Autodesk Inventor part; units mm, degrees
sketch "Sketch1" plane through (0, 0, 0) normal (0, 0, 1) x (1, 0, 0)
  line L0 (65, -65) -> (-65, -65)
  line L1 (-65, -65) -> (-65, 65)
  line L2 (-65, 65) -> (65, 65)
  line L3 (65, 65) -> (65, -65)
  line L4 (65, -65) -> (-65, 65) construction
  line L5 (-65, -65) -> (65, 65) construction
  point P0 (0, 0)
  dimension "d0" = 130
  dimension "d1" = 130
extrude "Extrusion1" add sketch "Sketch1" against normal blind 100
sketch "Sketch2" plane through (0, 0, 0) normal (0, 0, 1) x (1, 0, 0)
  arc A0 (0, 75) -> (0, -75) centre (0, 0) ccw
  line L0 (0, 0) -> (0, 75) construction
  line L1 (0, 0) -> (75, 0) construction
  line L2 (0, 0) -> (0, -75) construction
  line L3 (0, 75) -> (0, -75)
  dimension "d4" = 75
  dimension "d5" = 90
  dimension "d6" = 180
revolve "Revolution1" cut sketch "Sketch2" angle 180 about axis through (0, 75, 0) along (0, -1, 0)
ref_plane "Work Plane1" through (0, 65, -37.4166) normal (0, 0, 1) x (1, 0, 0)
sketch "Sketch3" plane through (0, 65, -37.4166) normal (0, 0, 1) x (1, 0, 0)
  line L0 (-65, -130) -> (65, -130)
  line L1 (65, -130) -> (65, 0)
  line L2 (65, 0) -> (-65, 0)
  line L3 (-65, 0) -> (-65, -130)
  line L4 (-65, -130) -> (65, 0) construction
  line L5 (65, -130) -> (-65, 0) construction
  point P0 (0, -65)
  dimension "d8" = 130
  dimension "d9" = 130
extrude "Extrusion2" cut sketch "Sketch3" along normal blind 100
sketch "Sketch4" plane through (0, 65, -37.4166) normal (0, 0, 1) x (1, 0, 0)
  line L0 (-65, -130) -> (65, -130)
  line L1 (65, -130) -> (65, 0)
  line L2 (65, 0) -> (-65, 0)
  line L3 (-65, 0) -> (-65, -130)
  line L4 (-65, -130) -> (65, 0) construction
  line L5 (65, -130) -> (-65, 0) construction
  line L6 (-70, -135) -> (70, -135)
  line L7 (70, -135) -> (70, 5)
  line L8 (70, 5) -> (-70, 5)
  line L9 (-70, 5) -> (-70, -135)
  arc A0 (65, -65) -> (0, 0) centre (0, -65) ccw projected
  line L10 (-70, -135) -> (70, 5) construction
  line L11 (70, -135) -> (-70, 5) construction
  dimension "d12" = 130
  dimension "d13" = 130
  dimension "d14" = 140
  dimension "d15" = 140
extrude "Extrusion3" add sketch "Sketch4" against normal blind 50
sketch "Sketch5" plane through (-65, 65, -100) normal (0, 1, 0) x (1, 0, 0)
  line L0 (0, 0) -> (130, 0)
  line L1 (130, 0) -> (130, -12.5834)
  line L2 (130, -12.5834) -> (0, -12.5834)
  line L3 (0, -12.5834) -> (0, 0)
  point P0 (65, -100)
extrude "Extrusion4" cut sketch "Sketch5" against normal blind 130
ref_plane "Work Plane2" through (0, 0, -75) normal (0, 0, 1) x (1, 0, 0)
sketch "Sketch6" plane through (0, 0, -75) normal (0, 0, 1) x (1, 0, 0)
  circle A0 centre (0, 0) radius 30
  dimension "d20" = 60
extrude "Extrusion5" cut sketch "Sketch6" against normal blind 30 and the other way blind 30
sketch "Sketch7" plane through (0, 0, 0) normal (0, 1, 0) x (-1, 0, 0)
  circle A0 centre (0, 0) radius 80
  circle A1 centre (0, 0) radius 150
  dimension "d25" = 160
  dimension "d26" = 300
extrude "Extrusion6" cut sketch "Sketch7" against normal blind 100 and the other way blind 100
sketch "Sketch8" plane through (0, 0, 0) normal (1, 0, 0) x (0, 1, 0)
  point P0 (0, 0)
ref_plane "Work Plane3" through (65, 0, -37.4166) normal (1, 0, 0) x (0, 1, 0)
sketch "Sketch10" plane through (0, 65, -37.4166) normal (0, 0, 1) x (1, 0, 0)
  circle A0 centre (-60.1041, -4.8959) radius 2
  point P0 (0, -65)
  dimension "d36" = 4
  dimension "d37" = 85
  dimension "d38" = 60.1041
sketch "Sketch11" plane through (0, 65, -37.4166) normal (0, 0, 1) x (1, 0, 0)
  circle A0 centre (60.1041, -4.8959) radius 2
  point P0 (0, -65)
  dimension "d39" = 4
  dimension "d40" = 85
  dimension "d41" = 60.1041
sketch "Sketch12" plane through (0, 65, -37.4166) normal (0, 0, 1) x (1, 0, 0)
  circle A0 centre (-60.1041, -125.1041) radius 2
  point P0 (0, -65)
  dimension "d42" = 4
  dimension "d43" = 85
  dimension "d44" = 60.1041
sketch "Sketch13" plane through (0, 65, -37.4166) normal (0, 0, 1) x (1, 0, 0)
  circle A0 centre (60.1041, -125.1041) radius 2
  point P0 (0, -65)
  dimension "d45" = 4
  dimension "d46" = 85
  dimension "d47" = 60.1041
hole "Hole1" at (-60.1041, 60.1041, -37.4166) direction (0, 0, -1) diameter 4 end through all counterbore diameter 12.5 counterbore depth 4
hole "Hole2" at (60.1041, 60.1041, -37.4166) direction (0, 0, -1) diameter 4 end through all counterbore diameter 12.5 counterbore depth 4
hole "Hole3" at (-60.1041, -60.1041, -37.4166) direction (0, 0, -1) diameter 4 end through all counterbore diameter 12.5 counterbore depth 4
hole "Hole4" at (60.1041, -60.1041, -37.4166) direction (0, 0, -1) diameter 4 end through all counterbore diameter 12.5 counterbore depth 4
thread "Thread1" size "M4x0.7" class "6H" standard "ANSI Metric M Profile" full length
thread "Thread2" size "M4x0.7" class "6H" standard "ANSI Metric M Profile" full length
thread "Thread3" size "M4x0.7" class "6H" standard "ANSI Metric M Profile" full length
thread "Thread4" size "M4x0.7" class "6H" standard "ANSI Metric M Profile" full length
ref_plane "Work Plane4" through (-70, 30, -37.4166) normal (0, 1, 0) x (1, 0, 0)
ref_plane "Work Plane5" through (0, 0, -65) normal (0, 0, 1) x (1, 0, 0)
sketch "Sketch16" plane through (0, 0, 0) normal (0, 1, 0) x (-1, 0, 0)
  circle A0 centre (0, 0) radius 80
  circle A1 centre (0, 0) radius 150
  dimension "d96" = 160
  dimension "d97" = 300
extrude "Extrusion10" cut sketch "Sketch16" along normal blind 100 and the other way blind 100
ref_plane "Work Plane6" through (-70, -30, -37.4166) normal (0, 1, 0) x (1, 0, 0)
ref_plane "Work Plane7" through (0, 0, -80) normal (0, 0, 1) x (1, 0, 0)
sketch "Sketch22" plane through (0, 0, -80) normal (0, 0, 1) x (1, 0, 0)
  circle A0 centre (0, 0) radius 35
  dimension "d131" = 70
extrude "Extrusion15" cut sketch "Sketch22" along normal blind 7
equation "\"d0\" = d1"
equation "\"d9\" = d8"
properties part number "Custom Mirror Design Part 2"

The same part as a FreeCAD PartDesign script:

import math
import FreeCAD as App
import Part
import Sketcher
from FreeCAD import Vector

doc = App.newDocument("Part")
body = doc.addObject("PartDesign::Body", "Body")

# Sketch on XY plane
sketch1 = doc.addObject("Sketcher::SketchObject", "Sketch")
body.addObject(sketch1)
sketch1.AttachmentSupport = (doc.XY_Plane, [""])
sketch1.MapMode = "FlatFace"
sketch1.addGeometry([
    Part.LineSegment(Vector(-65, -65, 0), Vector(65, -65, 0)),
    Part.LineSegment(Vector(65, -65, 0), Vector(65, 65, 0)),
    Part.LineSegment(Vector(65, 65, 0), Vector(-65, 65, 0)),
    Part.LineSegment(Vector(-65, 65, 0), Vector(-65, -65, 0)),
], False)
sketch1.addConstraint([
    Sketcher.Constraint("Coincident", 0, 2, 1, 1),
    Sketcher.Constraint("Coincident", 1, 2, 2, 1),
    Sketcher.Constraint("Coincident", 2, 2, 3, 1),
    Sketcher.Constraint("Coincident", 3, 2, 0, 1),
    Sketcher.Constraint("Horizontal", 0),
    Sketcher.Constraint("Vertical", 1),
    Sketcher.Constraint("Horizontal", 2),
    Sketcher.Constraint("Vertical", 3),
    Sketcher.Constraint("Symmetric", 0, 2, 2, 2, -1, 1),
    Sketcher.Constraint("Equal", 2, 1),
    Sketcher.Constraint("DistanceX", 0, 1, 0, 2, 130.0),
])
pad1 = doc.addObject("PartDesign::Pad", "Pad")
body.addObject(pad1)
pad1.Profile = sketch1
pad1.Length = 100
pad1.Reversed = True

# Sketch on XY plane
sketch2 = doc.addObject("Sketcher::SketchObject", "Sketch001")
body.addObject(sketch2)
sketch2.AttachmentSupport = (doc.XY_Plane, [""])
sketch2.MapMode = "FlatFace"
sketch2.addGeometry([
    Part.LineSegment(Vector(0, -75, 0), Vector(0, 75, 0)),
    Part.ArcOfCircle(Part.Circle(Vector(0, 0, 0), Vector(0, 0, 1), 75), math.radians(90), math.radians(270)),
], False)
sketch2.addConstraint([
    Sketcher.Constraint("Coincident", 0, 1, 1, 2),
    Sketcher.Constraint("Coincident", 1, 1, 0, 2),
    Sketcher.Constraint("Vertical", 0),
    Sketcher.Constraint("Coincident", 1, 3, -1, 1),
    Sketcher.Constraint("PointOnObject", 0, 1, -2),
    Sketcher.Constraint("Radius", 1, 75.0),
])
groove = doc.addObject("PartDesign::Groove", "Groove")
body.addObject(groove)
groove.Profile = sketch2
groove.ReferenceAxis = (sketch2, ["V_Axis"])
groove.Angle = 180
groove.Reversed = True

# Sketch on XY plane
sketch3 = doc.addObject("Sketcher::SketchObject", "Sketch002")
body.addObject(sketch3)
sketch3.AttachmentSupport = (doc.XY_Plane, [""])
sketch3.MapMode = "FlatFace"
sketch3.AttachmentOffset = App.Placement(Vector(0, 0, -37.4166), App.Rotation())
sketch3.addGeometry([
    Part.LineSegment(Vector(-65, 65, 0), Vector(-65, -65, 0)),
    Part.LineSegment(Vector(-65, -65, 0), Vector(65, -65, 0)),
    Part.LineSegment(Vector(65, -65, 0), Vector(65, 65, 0)),
    Part.LineSegment(Vector(65, 65, 0), Vector(-65, 65, 0)),
], False)
sketch3.addConstraint([
    Sketcher.Constraint("Coincident", 0, 2, 1, 1),
    Sketcher.Constraint("Coincident", 1, 2, 2, 1),
    Sketcher.Constraint("Coincident", 2, 2, 3, 1),
    Sketcher.Constraint("Coincident", 3, 2, 0, 1),
    Sketcher.Constraint("Vertical", 0),
    Sketcher.Constraint("Horizontal", 1),
    Sketcher.Constraint("Vertical", 2),
    Sketcher.Constraint("Horizontal", 3),
    Sketcher.Constraint("Symmetric", 0, 2, 2, 2, -1, 1),
    Sketcher.Constraint("Equal", 3, 0),
    Sketcher.Constraint("DistanceX", 1, 1, 1, 2, 130.0),
])
pocket1 = doc.addObject("PartDesign::Pocket", "Pocket")
body.addObject(pocket1)
pocket1.Profile = sketch3
pocket1.Length = 100
pocket1.Reversed = True

# Sketch on XY plane
sketch4 = doc.addObject("Sketcher::SketchObject", "Sketch003")
body.addObject(sketch4)
sketch4.AttachmentSupport = (doc.XY_Plane, [""])
sketch4.MapMode = "FlatFace"
sketch4.AttachmentOffset = App.Placement(Vector(0, 0, -37.4166), App.Rotation())
sketch4.addGeometry([
    Part.LineSegment(Vector(-70, 70, 0), Vector(-70, -70, 0)),  # 0
    Part.LineSegment(Vector(-70, -70, 0), Vector(70, -70, 0)),  # 1
    Part.LineSegment(Vector(70, -70, 0), Vector(70, 70, 0)),  # 2
    Part.LineSegment(Vector(70, 70, 0), Vector(-70, 70, 0)),  # 3
    Part.LineSegment(Vector(65, -65, 0), Vector(-65, -65, 0)),  # 4
    Part.LineSegment(Vector(-65, -65, 0), Vector(-65, 65, 0)),  # 5
    Part.LineSegment(Vector(-65, 65, 0), Vector(65, 65, 0)),  # 6
    Part.LineSegment(Vector(65, 65, 0), Vector(65, -65, 0)),  # 7
], False)
sketch4.addConstraint([
    Sketcher.Constraint("Coincident", 0, 2, 1, 1),
    Sketcher.Constraint("Coincident", 1, 2, 2, 1),
    Sketcher.Constraint("Coincident", 2, 2, 3, 1),
    Sketcher.Constraint("Coincident", 3, 2, 0, 1),
    Sketcher.Constraint("Coincident", 4, 2, 5, 1),
    Sketcher.Constraint("Coincident", 5, 2, 6, 1),
    Sketcher.Constraint("Coincident", 6, 2, 7, 1),
    Sketcher.Constraint("Coincident", 7, 2, 4, 1),
    Sketcher.Constraint("Vertical", 0),
    Sketcher.Constraint("Horizontal", 1),
    Sketcher.Constraint("Vertical", 2),
    Sketcher.Constraint("Horizontal", 3),
    Sketcher.Constraint("Horizontal", 4),
    Sketcher.Constraint("Vertical", 5),
    Sketcher.Constraint("Horizontal", 6),
    Sketcher.Constraint("Vertical", 7),
    Sketcher.Constraint("Symmetric", 0, 2, 2, 2, -1, 1),
    Sketcher.Constraint("Symmetric", 4, 2, 6, 2, -1, 1),
    Sketcher.Constraint("Equal", 3, 0),
    Sketcher.Constraint("Equal", 6, 5),
    Sketcher.Constraint("DistanceX", 1, 1, 1, 2, 140.0),
    Sketcher.Constraint("DistanceX", 4, 2, 4, 1, 130.0),
])
pad2 = doc.addObject("PartDesign::Pad", "Pad001")
body.addObject(pad2)
pad2.Profile = sketch4
pad2.Length = 50
pad2.Reversed = True

# Sketch on XZ plane
sketch5 = doc.addObject("Sketcher::SketchObject", "Sketch004")
body.addObject(sketch5)
sketch5.AttachmentSupport = (doc.XZ_Plane, [""])
sketch5.MapMode = "FlatFace"
sketch5.AttachmentOffset = App.Placement(Vector(0, 0, -65), App.Rotation())
sketch5.addGeometry([
    Part.LineSegment(Vector(65, -100, 0), Vector(-65, -100, 0)),
    Part.LineSegment(Vector(-65, -100, 0), Vector(-65, -87, 0)),
    Part.LineSegment(Vector(-65, -87, 0), Vector(65, -87, 0)),
    Part.LineSegment(Vector(65, -87, 0), Vector(65, -100, 0)),
], False)
sketch5.addConstraint([
    Sketcher.Constraint("Coincident", 0, 2, 1, 1),
    Sketcher.Constraint("Coincident", 1, 2, 2, 1),
    Sketcher.Constraint("Coincident", 2, 2, 3, 1),
    Sketcher.Constraint("Coincident", 3, 2, 0, 1),
    Sketcher.Constraint("Horizontal", 0),
    Sketcher.Constraint("Vertical", 1),
    Sketcher.Constraint("Horizontal", 2),
    Sketcher.Constraint("Vertical", 3),
    Sketcher.Constraint("DistanceX", 0, 2, 0, 1, 130.0),
    Sketcher.Constraint("DistanceX", 0, 2, -1, 1, 65.0),
    Sketcher.Constraint("DistanceY", 0, 2, -1, 1, 100.0),
    Sketcher.Constraint("DistanceY", 1, 1, 1, 2, 12.5834),
])
pocket2 = doc.addObject("PartDesign::Pocket", "Pocket001")
body.addObject(pocket2)
pocket2.Profile = sketch5
pocket2.Length = 130
pocket2.Reversed = True

# Sketch on XY plane
sketch6 = doc.addObject("Sketcher::SketchObject", "Sketch005")
body.addObject(sketch6)
sketch6.AttachmentSupport = (doc.XY_Plane, [""])
sketch6.MapMode = "FlatFace"
sketch6.AttachmentOffset = App.Placement(Vector(0, 0, -75), App.Rotation())
sketch6.addGeometry(Part.Circle(Vector(0, 0, 0), Vector(0, 0, 1), 30), False)
sketch6.addConstraint([
    Sketcher.Constraint("Coincident", 0, 3, -1, 1),
    Sketcher.Constraint("Diameter", 0, 60.0),
])
pocket3 = doc.addObject("PartDesign::Pocket", "Pocket002")
body.addObject(pocket3)
pocket3.Profile = sketch6
pocket3.Type = "ThroughAll"
pocket3.Midplane = True

# Sketch on XZ plane
sketch7 = doc.addObject("Sketcher::SketchObject", "Sketch006")
body.addObject(sketch7)
sketch7.AttachmentSupport = (doc.XZ_Plane, [""])
sketch7.MapMode = "FlatFace"
sketch7.addGeometry([
    Part.Circle(Vector(0, 0, 0), Vector(0, 0, 1), 150),
    Part.Circle(Vector(0, 0, 0), Vector(0, 0, 1), 80),
], False)
sketch7.addConstraint([
    Sketcher.Constraint("Coincident", 0, 3, -1, 1),
    Sketcher.Constraint("Coincident", 1, 3, -1, 1),
    Sketcher.Constraint("Diameter", 0, 300.0),
    Sketcher.Constraint("Diameter", 1, 160.0),
])
pocket4 = doc.addObject("PartDesign::Pocket", "Pocket003")
body.addObject(pocket4)
pocket4.Profile = sketch7
pocket4.Type = "ThroughAll"
pocket4.Midplane = True

# Sketch on XY plane
sketch8 = doc.addObject("Sketcher::SketchObject", "Sketch007")
body.addObject(sketch8)
sketch8.AttachmentSupport = (doc.XY_Plane, [""])
sketch8.MapMode = "FlatFace"
sketch8.AttachmentOffset = App.Placement(Vector(0, 0, -37.4166), App.Rotation())
sketch8.addGeometry(Part.Circle(Vector(-60.1, 60.1, 0), Vector(0, 0, 1), 2), False)
sketch8.addConstraint([
    Sketcher.Constraint("Diameter", 0, 4.0),
    Sketcher.Constraint("DistanceX", 0, 3, -1, 1, 60.104),
    Sketcher.Constraint("DistanceY", -1, 1, 0, 3, 60.104),
])
doc.recompute()
hole = doc.addObject("PartDesign::Hole", "Hole")
body.addObject(hole)
hole.Profile = sketch8
hole.ThreadType = "None"
hole.Diameter = 4
hole.DepthType = "ThroughAll"
hole.HoleCutType = "Counterbore"
hole.HoleCutDiameter = 12.5
hole.HoleCutDepth = 4

# Sketch on XY plane
sketch9 = doc.addObject("Sketcher::SketchObject", "Sketch008")
body.addObject(sketch9)
sketch9.AttachmentSupport = (doc.XY_Plane, [""])
sketch9.MapMode = "FlatFace"
sketch9.AttachmentOffset = App.Placement(Vector(0, 0, -37.4166), App.Rotation())
sketch9.addGeometry(Part.Circle(Vector(60.1, 60.1, 0), Vector(0, 0, 1), 2), False)
sketch9.addConstraint([
    Sketcher.Constraint("Diameter", 0, 4.0),
    Sketcher.Constraint("DistanceX", -1, 1, 0, 3, 60.104),
    Sketcher.Constraint("DistanceY", -1, 1, 0, 3, 60.104),
])
doc.recompute()
hole2 = doc.addObject("PartDesign::Hole", "Hole001")
body.addObject(hole2)
hole2.Profile = sketch9
hole2.ThreadType = "None"
hole2.Diameter = 4
hole2.DepthType = "ThroughAll"
hole2.HoleCutType = "Counterbore"
hole2.HoleCutDiameter = 12.5
hole2.HoleCutDepth = 4

# Sketch on XY plane
sketch10 = doc.addObject("Sketcher::SketchObject", "Sketch009")
body.addObject(sketch10)
sketch10.AttachmentSupport = (doc.XY_Plane, [""])
sketch10.MapMode = "FlatFace"
sketch10.AttachmentOffset = App.Placement(Vector(0, 0, -37.4166), App.Rotation())
sketch10.addGeometry(Part.Circle(Vector(-60.1, -60.1, 0), Vector(0, 0, 1), 2), False)
sketch10.addConstraint([
    Sketcher.Constraint("Diameter", 0, 4.0),
    Sketcher.Constraint("DistanceX", 0, 3, -1, 1, 60.104),
    Sketcher.Constraint("DistanceY", 0, 3, -1, 1, 60.104),
])
doc.recompute()
hole3 = doc.addObject("PartDesign::Hole", "Hole002")
body.addObject(hole3)
hole3.Profile = sketch10
hole3.ThreadType = "None"
hole3.Diameter = 4
hole3.DepthType = "ThroughAll"
hole3.HoleCutType = "Counterbore"
hole3.HoleCutDiameter = 12.5
hole3.HoleCutDepth = 4

# Sketch on XY plane
sketch11 = doc.addObject("Sketcher::SketchObject", "Sketch010")
body.addObject(sketch11)
sketch11.AttachmentSupport = (doc.XY_Plane, [""])
sketch11.MapMode = "FlatFace"
sketch11.AttachmentOffset = App.Placement(Vector(0, 0, -37.4166), App.Rotation())
sketch11.addGeometry(Part.Circle(Vector(60.1, -60.1, 0), Vector(0, 0, 1), 2), False)
sketch11.addConstraint([
    Sketcher.Constraint("Diameter", 0, 4.0),
    Sketcher.Constraint("DistanceX", -1, 1, 0, 3, 60.104),
    Sketcher.Constraint("DistanceY", 0, 3, -1, 1, 60.104),
])
doc.recompute()
hole4 = doc.addObject("PartDesign::Hole", "Hole003")
body.addObject(hole4)
hole4.Profile = sketch11
hole4.ThreadType = "None"
hole4.Diameter = 4
hole4.DepthType = "ThroughAll"
hole4.HoleCutType = "Counterbore"
hole4.HoleCutDiameter = 12.5
hole4.HoleCutDepth = 4

# Sketch on XZ plane
sketch12 = doc.addObject("Sketcher::SketchObject", "Sketch011")
body.addObject(sketch12)
sketch12.AttachmentSupport = (doc.XZ_Plane, [""])
sketch12.MapMode = "FlatFace"
sketch12.addGeometry([
    Part.Circle(Vector(0, 0, 0), Vector(0, 0, 1), 150),
    Part.Circle(Vector(0, 0, 0), Vector(0, 0, 1), 80),
], False)
sketch12.addConstraint([
    Sketcher.Constraint("Coincident", 0, 3, -1, 1),
    Sketcher.Constraint("Coincident", 1, 3, -1, 1),
    Sketcher.Constraint("Diameter", 0, 300.0),
    Sketcher.Constraint("Diameter", 1, 160.0),
])
pocket5 = doc.addObject("PartDesign::Pocket", "Pocket004")
body.addObject(pocket5)
pocket5.Profile = sketch12
pocket5.Type = "ThroughAll"
pocket5.Midplane = True

# Sketch on XY plane
sketch13 = doc.addObject("Sketcher::SketchObject", "Sketch012")
body.addObject(sketch13)
sketch13.AttachmentSupport = (doc.XY_Plane, [""])
sketch13.MapMode = "FlatFace"
sketch13.AttachmentOffset = App.Placement(Vector(0, 0, -80), App.Rotation())
sketch13.addGeometry(Part.Circle(Vector(0, 0, 0), Vector(0, 0, 1), 35), False)
sketch13.addConstraint([
    Sketcher.Constraint("Coincident", 0, 3, -1, 1),
    Sketcher.Constraint("Diameter", 0, 70.0),
])
pocket6 = doc.addObject("PartDesign::Pocket", "Pocket005")
body.addObject(pocket6)
pocket6.Profile = sketch13
pocket6.Length = 7
pocket6.Reversed = True

doc.recompute()
